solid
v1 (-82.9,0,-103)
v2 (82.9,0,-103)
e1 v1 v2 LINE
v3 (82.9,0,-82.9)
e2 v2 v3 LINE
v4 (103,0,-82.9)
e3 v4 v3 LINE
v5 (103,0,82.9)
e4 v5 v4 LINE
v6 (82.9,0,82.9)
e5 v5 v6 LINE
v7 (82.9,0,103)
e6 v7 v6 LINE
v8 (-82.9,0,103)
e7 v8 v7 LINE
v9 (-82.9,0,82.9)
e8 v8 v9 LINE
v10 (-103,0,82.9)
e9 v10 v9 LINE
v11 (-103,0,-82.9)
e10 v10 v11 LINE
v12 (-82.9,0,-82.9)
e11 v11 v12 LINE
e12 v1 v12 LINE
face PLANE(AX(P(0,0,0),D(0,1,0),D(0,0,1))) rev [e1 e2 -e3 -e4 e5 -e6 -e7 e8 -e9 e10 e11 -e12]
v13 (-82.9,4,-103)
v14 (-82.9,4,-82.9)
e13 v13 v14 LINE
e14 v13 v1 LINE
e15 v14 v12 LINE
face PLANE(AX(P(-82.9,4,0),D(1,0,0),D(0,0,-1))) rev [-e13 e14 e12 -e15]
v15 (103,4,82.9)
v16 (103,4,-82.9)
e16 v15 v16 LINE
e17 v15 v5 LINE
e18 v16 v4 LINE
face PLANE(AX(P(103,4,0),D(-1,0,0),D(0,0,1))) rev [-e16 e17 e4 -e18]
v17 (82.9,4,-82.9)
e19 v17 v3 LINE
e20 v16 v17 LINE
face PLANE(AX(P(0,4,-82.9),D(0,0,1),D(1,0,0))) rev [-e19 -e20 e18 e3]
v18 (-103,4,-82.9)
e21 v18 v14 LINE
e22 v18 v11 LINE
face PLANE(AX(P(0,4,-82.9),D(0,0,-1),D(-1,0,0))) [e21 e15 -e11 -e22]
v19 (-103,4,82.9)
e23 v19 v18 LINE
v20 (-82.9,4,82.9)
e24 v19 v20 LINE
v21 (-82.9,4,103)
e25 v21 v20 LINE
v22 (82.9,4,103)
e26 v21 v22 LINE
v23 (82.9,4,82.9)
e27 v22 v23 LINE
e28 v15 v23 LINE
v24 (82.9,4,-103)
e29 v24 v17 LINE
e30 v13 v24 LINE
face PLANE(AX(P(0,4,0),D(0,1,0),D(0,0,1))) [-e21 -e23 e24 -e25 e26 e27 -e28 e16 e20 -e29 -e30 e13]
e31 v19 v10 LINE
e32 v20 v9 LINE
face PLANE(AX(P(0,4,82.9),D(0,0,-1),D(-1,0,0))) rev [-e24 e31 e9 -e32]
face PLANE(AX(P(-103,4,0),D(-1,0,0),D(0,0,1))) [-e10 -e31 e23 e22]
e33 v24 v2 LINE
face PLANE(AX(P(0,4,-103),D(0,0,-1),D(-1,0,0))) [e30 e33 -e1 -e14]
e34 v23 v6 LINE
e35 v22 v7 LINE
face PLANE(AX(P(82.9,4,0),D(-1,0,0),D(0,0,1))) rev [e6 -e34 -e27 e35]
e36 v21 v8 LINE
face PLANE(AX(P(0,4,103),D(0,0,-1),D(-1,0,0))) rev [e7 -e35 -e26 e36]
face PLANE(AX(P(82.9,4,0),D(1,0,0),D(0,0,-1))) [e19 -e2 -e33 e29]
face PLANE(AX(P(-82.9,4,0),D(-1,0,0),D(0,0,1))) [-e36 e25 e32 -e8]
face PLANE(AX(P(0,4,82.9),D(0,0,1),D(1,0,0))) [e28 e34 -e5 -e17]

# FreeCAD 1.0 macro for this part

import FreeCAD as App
import Part
import Sketcher

V = App.Vector

doc = App.newDocument("Part")
body = doc.addObject("PartDesign::Body", "Body")

sketch1 = body.newObject("Sketcher::SketchObject", "Sketch")
sketch1.AttachmentSupport = (doc.getObject("XZ_Plane"), [""])
sketch1.MapMode = "FlatFace"
sketch1.addGeometry([
    Part.LineSegment(V(-83, 83, 0), V(-83, 103, 0)),
    Part.LineSegment(V(-83, 103, 0), V(83, 103, 0)),
    Part.LineSegment(V(83, 103, 0), V(83, 83, 0)),
    Part.LineSegment(V(83, 83, 0), V(103, 83, 0)),
    Part.LineSegment(V(103, 83, 0), V(103, -83, 0)),
    Part.LineSegment(V(103, -83, 0), V(83, -83, 0)),
    Part.LineSegment(V(83, -83, 0), V(83, -103, 0)),
    Part.LineSegment(V(83, -103, 0), V(-83, -103, 0)),
    Part.LineSegment(V(-83, -103, 0), V(-83, -83, 0)),
    Part.LineSegment(V(-83, -83, 0), V(-103, -83, 0)),
    Part.LineSegment(V(-103, -83, 0), V(-103, 83, 0)),
    Part.LineSegment(V(-103, 83, 0), V(-83, 83, 0)),
], False)
sketch1.addConstraint([
    Sketcher.Constraint("Coincident", 0, 2, 1, 1),
    Sketcher.Constraint("Coincident", 1, 2, 2, 1),
    Sketcher.Constraint("Coincident", 2, 2, 3, 1),
    Sketcher.Constraint("Coincident", 3, 2, 4, 1),
    Sketcher.Constraint("Coincident", 4, 2, 5, 1),
    Sketcher.Constraint("Coincident", 5, 2, 6, 1),
    Sketcher.Constraint("Coincident", 6, 2, 7, 1),
    Sketcher.Constraint("Coincident", 7, 2, 8, 1),
    Sketcher.Constraint("Coincident", 8, 2, 9, 1),
    Sketcher.Constraint("Coincident", 9, 2, 10, 1),
    Sketcher.Constraint("Coincident", 10, 2, 11, 1),
    Sketcher.Constraint("Coincident", 11, 2, 0, 1),
    Sketcher.Constraint("Vertical", 0),
    Sketcher.Constraint("Horizontal", 1),
    Sketcher.Constraint("Vertical", 2),
    Sketcher.Constraint("Horizontal", 3),
    Sketcher.Constraint("Vertical", 4),
    Sketcher.Constraint("Horizontal", 5),
    Sketcher.Constraint("Vertical", 6),
    Sketcher.Constraint("Horizontal", 7),
    Sketcher.Constraint("Vertical", 8),
    Sketcher.Constraint("Horizontal", 9),
    Sketcher.Constraint("Vertical", 10),
    Sketcher.Constraint("Horizontal", 11),
    Sketcher.Constraint("Symmetric", 0, 2, 6, 2, -1, 1),
    Sketcher.Constraint("Symmetric", 2, 2, 8, 2, -1, 1),
    Sketcher.Constraint("Symmetric", 4, 2, 10, 2, -1, 1),
    Sketcher.Constraint("Symmetric", 5, 2, 8, 2, -2),
    Sketcher.Constraint("Equal", 11, 0),
    Sketcher.Constraint("Equal", 7, 4),
    Sketcher.Constraint("DistanceX", 1, 1, 1, 2, 165.8),
    Sketcher.Constraint("DistanceX", 3, 1, 3, 2, 20.1),
])
pad1 = body.newObject("PartDesign::Pad", "Pad")
pad1.Profile = sketch1
pad1.Length = 4
pad1.Reversed = True

doc.recompute()
